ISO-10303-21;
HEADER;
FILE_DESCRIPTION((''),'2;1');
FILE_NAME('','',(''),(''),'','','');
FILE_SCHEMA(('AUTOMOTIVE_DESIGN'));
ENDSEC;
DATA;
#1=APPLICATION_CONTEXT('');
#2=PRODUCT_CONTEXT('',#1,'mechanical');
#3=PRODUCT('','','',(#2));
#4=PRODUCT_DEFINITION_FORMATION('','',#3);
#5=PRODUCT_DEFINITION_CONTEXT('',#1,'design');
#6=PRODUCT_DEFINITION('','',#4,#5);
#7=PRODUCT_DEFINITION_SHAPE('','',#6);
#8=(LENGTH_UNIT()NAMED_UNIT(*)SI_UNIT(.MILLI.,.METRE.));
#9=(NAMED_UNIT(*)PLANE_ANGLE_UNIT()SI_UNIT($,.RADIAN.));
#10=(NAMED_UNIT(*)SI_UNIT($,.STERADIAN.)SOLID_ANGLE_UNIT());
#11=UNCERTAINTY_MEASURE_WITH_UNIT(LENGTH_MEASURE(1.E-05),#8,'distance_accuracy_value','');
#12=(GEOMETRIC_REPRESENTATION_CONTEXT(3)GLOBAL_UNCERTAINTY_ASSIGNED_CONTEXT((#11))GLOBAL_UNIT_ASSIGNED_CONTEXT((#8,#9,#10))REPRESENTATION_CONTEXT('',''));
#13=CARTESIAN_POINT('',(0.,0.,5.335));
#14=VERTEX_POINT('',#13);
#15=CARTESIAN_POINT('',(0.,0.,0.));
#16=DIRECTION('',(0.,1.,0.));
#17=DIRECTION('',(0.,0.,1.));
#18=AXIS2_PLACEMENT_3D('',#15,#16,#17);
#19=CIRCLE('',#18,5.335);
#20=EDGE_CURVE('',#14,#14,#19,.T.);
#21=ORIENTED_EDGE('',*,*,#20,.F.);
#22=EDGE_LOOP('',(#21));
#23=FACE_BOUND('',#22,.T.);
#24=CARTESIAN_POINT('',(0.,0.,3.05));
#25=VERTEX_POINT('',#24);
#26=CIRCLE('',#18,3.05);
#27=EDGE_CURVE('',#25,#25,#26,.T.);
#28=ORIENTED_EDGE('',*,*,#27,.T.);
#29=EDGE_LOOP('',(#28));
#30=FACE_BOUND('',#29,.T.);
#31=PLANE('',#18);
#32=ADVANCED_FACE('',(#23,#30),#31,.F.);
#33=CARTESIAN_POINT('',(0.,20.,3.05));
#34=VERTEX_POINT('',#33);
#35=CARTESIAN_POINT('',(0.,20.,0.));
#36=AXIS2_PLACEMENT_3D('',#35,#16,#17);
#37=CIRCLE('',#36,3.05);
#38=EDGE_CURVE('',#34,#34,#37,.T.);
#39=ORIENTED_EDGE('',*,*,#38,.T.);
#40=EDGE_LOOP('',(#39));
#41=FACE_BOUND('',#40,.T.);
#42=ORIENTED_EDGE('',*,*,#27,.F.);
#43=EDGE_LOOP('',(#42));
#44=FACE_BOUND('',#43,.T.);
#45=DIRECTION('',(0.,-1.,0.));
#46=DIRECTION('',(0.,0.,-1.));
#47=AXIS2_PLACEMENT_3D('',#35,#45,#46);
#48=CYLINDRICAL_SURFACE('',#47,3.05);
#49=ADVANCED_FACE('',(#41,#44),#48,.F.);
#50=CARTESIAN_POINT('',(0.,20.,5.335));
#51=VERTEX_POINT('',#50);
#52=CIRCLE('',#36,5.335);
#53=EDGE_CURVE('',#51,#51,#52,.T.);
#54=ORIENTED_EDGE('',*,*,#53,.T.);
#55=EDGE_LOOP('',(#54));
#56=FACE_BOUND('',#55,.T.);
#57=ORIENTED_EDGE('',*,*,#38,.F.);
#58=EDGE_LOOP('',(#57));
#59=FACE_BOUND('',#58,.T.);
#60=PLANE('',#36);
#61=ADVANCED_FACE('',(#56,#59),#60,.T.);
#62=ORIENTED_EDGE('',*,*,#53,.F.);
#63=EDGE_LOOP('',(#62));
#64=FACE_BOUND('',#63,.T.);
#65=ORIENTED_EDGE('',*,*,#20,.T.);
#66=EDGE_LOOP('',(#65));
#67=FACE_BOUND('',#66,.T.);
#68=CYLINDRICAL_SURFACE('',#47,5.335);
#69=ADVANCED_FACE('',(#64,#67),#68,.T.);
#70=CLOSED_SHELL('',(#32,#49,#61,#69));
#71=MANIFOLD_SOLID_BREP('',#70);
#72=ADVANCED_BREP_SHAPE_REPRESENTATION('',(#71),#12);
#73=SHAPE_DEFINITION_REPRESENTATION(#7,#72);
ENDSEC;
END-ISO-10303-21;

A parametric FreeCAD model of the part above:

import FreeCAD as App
import Part
import Sketcher
Q = App.Units.Quantity

doc = App.newDocument("Part")
body = doc.addObject("PartDesign::Body", "Body")

# Sketch on XZ plane
sketch1 = doc.addObject("Sketcher::SketchObject", "Sketch")
body.addObject(sketch1)
sketch1.AttachmentSupport = (doc.XZ_Plane, [""])
sketch1.MapMode = "FlatFace"
sketch1.addGeometry([
    Part.Circle(App.Vector(0, 0, 0), App.Vector(0, 0, 1), 5.3),
    Part.Circle(App.Vector(0, 0, 0), App.Vector(0, 0, 1), 3),
], False)
sketch1.addConstraint([
    Sketcher.Constraint("Coincident", 0, 3, -1, 1),
    Sketcher.Constraint("Coincident", 1, 3, -1, 1),
    Sketcher.Constraint("Diameter", 1, Q("6.1 mm")),
    Sketcher.Constraint("Diameter", 0, Q("10.67 mm")),
])
pad1 = doc.addObject("PartDesign::Pad", "Pad")
body.addObject(pad1)
pad1.Profile = sketch1
pad1.Length = 20
pad1.Reversed = True

doc.recompute()
